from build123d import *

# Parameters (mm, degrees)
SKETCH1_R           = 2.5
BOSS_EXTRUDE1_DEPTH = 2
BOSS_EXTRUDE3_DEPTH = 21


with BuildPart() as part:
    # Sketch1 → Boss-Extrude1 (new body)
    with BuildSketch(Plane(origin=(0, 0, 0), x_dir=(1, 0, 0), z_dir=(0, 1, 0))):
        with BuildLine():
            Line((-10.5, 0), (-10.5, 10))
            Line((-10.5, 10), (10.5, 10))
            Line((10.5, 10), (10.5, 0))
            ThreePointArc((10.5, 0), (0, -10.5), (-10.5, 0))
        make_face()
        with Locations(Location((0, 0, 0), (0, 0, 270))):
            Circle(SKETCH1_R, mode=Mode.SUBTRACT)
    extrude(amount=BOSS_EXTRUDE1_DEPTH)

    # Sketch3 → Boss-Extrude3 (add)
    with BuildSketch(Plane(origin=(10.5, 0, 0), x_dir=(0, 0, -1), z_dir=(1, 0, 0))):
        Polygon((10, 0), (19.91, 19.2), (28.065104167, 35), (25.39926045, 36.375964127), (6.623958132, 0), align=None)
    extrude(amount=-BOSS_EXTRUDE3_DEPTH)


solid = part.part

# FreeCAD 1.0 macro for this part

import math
import FreeCAD as App
import Part
import Sketcher
Q = App.Units.Quantity

doc = App.newDocument("Part")
body = doc.addObject("PartDesign::Body", "Body")

# Sketch on XZ plane
sketch1 = body.newObject("Sketcher::SketchObject", "Sketch")
sketch1.AttachmentSupport = (doc.getObject("XZ_Plane"), [""])
sketch1.MapMode = "FlatFace"
sketch1.addGeometry(Part.LineSegment(App.Vector(-10.5, -10, 0), App.Vector(-10.5, 0, 0)), False)
sketch1.addGeometry(Part.ArcOfCircle(Part.Circle(App.Vector(0, 0, 0), App.Vector(0, 0, 1), 10.5), math.radians(0), math.radians(180)), False)
sketch1.addGeometry(Part.LineSegment(App.Vector(10.5, 0, 0), App.Vector(10.5, -10, 0)), False)
sketch1.addGeometry(Part.LineSegment(App.Vector(10.5, -10, 0), App.Vector(-10.5, -10, 0)), False)
sketch1.addGeometry(Part.Circle(App.Vector(0, 0, 0), App.Vector(0, 0, 1), 2.5), False)
sketch1.addConstraint(Sketcher.Constraint("Tangent", 0, 2, 1, 2))
sketch1.addConstraint(Sketcher.Constraint("Tangent", 1, 1, 2, 1))
sketch1.addConstraint(Sketcher.Constraint("Coincident", 2, 2, 3, 1))
sketch1.addConstraint(Sketcher.Constraint("Coincident", 3, 2, 0, 1))
sketch1.addConstraint(Sketcher.Constraint("Vertical", 0))
sketch1.addConstraint(Sketcher.Constraint("Vertical", 2))
sketch1.addConstraint(Sketcher.Constraint("Horizontal", 3))
sketch1.addConstraint(Sketcher.Constraint("Coincident", 1, 3, -1, 1))
sketch1.addConstraint(Sketcher.Constraint("Coincident", 4, 3, -1, 1))
sketch1.addConstraint(Sketcher.Constraint("Diameter", 4, Q("5 mm")))
sketch1.addConstraint(Sketcher.Constraint("Radius", 1, Q("10.5 mm")))
sketch1.addConstraint(Sketcher.Constraint("DistanceY", 0, 1, 0, 2, Q("10 mm")))
pad1 = body.newObject("PartDesign::Pad", "Pad")
pad1.Profile = sketch1
pad1.Length = 2
pad1.Reversed = True

# Sketch on YZ plane
sketch2 = body.newObject("Sketcher::SketchObject", "Sketch001")
sketch2.AttachmentSupport = (doc.getObject("YZ_Plane"), [""])
sketch2.MapMode = "FlatFace"
sketch2.AttachmentOffset = App.Placement(App.Vector(0, 0, 10.5), App.Rotation())
sketch2.addGeometry(Part.LineSegment(App.Vector(0, -10, 0), App.Vector(19.2, -19.91, 0)), False)
sketch2.addGeometry(Part.LineSegment(App.Vector(19.2, -19.91, 0), App.Vector(35, -28.065104, 0)), False)
sketch2.addGeometry(Part.LineSegment(App.Vector(35, -28.065104, 0), App.Vector(36.375964, -25.39926, 0)), False)
sketch2.addGeometry(Part.LineSegment(App.Vector(36.375964, -25.39926, 0), App.Vector(0, -6.623958, 0)), False)
sketch2.addGeometry(Part.LineSegment(App.Vector(0, -6.623958, 0), App.Vector(0, -10, 0)), False)
sketch2.addConstraint(Sketcher.Constraint("Coincident", 0, 2, 1, 1))
sketch2.addConstraint(Sketcher.Constraint("Coincident", 1, 2, 2, 1))
sketch2.addConstraint(Sketcher.Constraint("Coincident", 2, 2, 3, 1))
sketch2.addConstraint(Sketcher.Constraint("Coincident", 3, 2, 4, 1))
sketch2.addConstraint(Sketcher.Constraint("Coincident", 4, 2, 0, 1))
sketch2.addConstraint(Sketcher.Constraint("Vertical", 4))
sketch2.addConstraint(Sketcher.Constraint("PointOnObject", 3, 2, -2))
sketch2.addConstraint(Sketcher.Constraint("Parallel", 0, 1))
sketch2.addConstraint(Sketcher.Constraint("Perpendicular", 1, 2))
sketch2.addConstraint(Sketcher.Constraint("Perpendicular", 2, 3))
sketch2.addConstraint(Sketcher.Constraint("Distance", 2, Q("3 mm")))
sketch2.addConstraint(Sketcher.Constraint("DistanceX", -1, 1, 1, 2, Q("35 mm")))
sketch2.addConstraint(Sketcher.Constraint("DistanceY", 4, 2, -1, 1, Q("10 mm")))
sketch2.addConstraint(Sketcher.Constraint("DistanceX", -1, 1, 0, 2, Q("19.2 mm")))
sketch2.addConstraint(Sketcher.Constraint("DistanceY", 0, 2, -1, 1, Q("19.91 mm")))
pad2 = body.newObject("PartDesign::Pad", "Pad001")
pad2.Profile = sketch2
pad2.Length = 21
pad2.Reversed = True

doc.recompute()
